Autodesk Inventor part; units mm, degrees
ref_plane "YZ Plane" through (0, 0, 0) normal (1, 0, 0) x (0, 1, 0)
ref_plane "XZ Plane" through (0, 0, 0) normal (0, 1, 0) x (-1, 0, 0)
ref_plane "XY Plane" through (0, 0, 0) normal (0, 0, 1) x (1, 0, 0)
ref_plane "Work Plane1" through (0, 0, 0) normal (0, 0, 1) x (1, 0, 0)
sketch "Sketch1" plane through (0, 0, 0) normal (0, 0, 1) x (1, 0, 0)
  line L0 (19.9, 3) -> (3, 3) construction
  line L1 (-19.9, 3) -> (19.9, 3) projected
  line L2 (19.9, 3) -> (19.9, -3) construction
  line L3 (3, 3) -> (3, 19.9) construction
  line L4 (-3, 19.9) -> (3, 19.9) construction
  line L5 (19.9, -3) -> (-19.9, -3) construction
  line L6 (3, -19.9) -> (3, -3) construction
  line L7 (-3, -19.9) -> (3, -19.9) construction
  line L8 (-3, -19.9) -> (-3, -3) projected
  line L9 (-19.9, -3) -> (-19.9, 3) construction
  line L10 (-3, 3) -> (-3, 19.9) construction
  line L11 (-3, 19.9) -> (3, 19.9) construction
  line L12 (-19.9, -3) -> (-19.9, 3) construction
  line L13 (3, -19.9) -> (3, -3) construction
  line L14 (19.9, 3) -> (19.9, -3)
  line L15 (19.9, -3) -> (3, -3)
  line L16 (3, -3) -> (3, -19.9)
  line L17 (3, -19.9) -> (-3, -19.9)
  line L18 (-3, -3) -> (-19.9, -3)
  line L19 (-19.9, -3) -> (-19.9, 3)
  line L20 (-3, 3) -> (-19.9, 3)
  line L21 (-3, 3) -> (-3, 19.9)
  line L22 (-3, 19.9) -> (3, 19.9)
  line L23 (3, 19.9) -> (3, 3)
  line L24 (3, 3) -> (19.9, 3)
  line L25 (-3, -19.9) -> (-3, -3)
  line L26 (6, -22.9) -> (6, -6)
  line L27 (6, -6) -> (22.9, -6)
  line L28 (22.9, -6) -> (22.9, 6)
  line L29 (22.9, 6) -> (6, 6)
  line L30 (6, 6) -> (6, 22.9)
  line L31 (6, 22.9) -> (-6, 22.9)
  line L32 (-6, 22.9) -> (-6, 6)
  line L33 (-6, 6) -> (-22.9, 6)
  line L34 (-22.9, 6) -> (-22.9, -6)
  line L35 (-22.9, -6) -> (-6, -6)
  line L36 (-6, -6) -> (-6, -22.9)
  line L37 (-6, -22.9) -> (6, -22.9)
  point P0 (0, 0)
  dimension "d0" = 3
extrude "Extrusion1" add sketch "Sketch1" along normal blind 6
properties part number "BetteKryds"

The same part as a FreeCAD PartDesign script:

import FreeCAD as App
import Part
import Sketcher
from FreeCAD import Vector


def add_polygon(sketch, points):
    """Adds a closed chain of lines whose ends are joined by coincident constraints."""
    first, n = sketch.GeometryCount, len(points)
    for a, b in zip(points, points[1:] + points[:1]):
        sketch.addGeometry(Part.LineSegment(App.Vector(*a, 0), App.Vector(*b, 0)), False)
    for i in range(n):
        sketch.addConstraint(Sketcher.Constraint("Coincident", first + i, 2, first + (i + 1) % n, 1))

doc = App.newDocument("Part")
body = doc.addObject("PartDesign::Body", "Body")

# Sketch on XY plane
sketch1 = doc.addObject("Sketcher::SketchObject", "Sketch")
body.addObject(sketch1)
sketch1.AttachmentSupport = (doc.XY_Plane, [""])
sketch1.MapMode = "FlatFace"
add_polygon(sketch1, [(-6, -22.9), (6, -22.9), (6, -6), (22.9, -6), (22.9, 6), (6, 6), (6, 22.9), (-6, 22.9), (-6, 6), (-22.9, 6), (-22.9, -6), (-6, -6)])  # lines 0-11
add_polygon(sketch1, [(-19.9, -3), (-19.9, 3), (-3, 3), (-3, 19.9), (3, 19.9), (3, 3), (19.9, 3), (19.9, -3), (3, -3), (3, -19.9), (-3, -19.9), (-3, -3)])  # lines 12-23
sketch1.addConstraint([
    Sketcher.Constraint("Horizontal", 0),
    Sketcher.Constraint("Vertical", 1),
    Sketcher.Constraint("Horizontal", 2),
    Sketcher.Constraint("Vertical", 3),
    Sketcher.Constraint("Horizontal", 4),
    Sketcher.Constraint("Vertical", 5),
    Sketcher.Constraint("Horizontal", 6),
    Sketcher.Constraint("Vertical", 7),
    Sketcher.Constraint("Horizontal", 8),
    Sketcher.Constraint("Vertical", 9),
    Sketcher.Constraint("Horizontal", 10),
    Sketcher.Constraint("Vertical", 11),
    Sketcher.Constraint("Vertical", 12),
    Sketcher.Constraint("Horizontal", 13),
    Sketcher.Constraint("Vertical", 14),
    Sketcher.Constraint("Horizontal", 15),
    Sketcher.Constraint("Vertical", 16),
    Sketcher.Constraint("Horizontal", 17),
    Sketcher.Constraint("Vertical", 18),
    Sketcher.Constraint("Horizontal", 19),
    Sketcher.Constraint("Vertical", 20),
    Sketcher.Constraint("Horizontal", 21),
    Sketcher.Constraint("Vertical", 22),
    Sketcher.Constraint("Horizontal", 23),
    Sketcher.Constraint("Symmetric", 0, 2, 6, 2, -1, 1),
    Sketcher.Constraint("Symmetric", 2, 2, 8, 2, -1, 1),
    Sketcher.Constraint("Symmetric", 4, 2, 10, 2, -1, 1),
    Sketcher.Constraint("Symmetric", 12, 2, 18, 2, -1, 1),
    Sketcher.Constraint("Symmetric", 14, 2, 20, 2, -1, 1),
    Sketcher.Constraint("Symmetric", 16, 2, 22, 2, -1, 1),
    Sketcher.Constraint("Symmetric", 4, 2, 7, 2, -2),
    Sketcher.Constraint("Symmetric", 13, 2, 16, 2, -2),
    Sketcher.Constraint("Equal", 10, 13),
    Sketcher.Constraint("Equal", 23, 1),
    Sketcher.Constraint("Equal", 6, 3),
    Sketcher.Constraint("Equal", 21, 12),
    Sketcher.Constraint("Equal", 11, 14),
    Sketcher.Constraint("DistanceY", -1, 1, 12, 2, 3.0),
    Sketcher.Constraint("DistanceX", 8, 2, 12, 2, 3.0),
    Sketcher.Constraint("DistanceX", 2, 1, 2, 2, 16.9),
])
pad1 = doc.addObject("PartDesign::Pad", "Pad")
body.addObject(pad1)
pad1.Profile = sketch1
pad1.Length = 6

doc.recompute()
